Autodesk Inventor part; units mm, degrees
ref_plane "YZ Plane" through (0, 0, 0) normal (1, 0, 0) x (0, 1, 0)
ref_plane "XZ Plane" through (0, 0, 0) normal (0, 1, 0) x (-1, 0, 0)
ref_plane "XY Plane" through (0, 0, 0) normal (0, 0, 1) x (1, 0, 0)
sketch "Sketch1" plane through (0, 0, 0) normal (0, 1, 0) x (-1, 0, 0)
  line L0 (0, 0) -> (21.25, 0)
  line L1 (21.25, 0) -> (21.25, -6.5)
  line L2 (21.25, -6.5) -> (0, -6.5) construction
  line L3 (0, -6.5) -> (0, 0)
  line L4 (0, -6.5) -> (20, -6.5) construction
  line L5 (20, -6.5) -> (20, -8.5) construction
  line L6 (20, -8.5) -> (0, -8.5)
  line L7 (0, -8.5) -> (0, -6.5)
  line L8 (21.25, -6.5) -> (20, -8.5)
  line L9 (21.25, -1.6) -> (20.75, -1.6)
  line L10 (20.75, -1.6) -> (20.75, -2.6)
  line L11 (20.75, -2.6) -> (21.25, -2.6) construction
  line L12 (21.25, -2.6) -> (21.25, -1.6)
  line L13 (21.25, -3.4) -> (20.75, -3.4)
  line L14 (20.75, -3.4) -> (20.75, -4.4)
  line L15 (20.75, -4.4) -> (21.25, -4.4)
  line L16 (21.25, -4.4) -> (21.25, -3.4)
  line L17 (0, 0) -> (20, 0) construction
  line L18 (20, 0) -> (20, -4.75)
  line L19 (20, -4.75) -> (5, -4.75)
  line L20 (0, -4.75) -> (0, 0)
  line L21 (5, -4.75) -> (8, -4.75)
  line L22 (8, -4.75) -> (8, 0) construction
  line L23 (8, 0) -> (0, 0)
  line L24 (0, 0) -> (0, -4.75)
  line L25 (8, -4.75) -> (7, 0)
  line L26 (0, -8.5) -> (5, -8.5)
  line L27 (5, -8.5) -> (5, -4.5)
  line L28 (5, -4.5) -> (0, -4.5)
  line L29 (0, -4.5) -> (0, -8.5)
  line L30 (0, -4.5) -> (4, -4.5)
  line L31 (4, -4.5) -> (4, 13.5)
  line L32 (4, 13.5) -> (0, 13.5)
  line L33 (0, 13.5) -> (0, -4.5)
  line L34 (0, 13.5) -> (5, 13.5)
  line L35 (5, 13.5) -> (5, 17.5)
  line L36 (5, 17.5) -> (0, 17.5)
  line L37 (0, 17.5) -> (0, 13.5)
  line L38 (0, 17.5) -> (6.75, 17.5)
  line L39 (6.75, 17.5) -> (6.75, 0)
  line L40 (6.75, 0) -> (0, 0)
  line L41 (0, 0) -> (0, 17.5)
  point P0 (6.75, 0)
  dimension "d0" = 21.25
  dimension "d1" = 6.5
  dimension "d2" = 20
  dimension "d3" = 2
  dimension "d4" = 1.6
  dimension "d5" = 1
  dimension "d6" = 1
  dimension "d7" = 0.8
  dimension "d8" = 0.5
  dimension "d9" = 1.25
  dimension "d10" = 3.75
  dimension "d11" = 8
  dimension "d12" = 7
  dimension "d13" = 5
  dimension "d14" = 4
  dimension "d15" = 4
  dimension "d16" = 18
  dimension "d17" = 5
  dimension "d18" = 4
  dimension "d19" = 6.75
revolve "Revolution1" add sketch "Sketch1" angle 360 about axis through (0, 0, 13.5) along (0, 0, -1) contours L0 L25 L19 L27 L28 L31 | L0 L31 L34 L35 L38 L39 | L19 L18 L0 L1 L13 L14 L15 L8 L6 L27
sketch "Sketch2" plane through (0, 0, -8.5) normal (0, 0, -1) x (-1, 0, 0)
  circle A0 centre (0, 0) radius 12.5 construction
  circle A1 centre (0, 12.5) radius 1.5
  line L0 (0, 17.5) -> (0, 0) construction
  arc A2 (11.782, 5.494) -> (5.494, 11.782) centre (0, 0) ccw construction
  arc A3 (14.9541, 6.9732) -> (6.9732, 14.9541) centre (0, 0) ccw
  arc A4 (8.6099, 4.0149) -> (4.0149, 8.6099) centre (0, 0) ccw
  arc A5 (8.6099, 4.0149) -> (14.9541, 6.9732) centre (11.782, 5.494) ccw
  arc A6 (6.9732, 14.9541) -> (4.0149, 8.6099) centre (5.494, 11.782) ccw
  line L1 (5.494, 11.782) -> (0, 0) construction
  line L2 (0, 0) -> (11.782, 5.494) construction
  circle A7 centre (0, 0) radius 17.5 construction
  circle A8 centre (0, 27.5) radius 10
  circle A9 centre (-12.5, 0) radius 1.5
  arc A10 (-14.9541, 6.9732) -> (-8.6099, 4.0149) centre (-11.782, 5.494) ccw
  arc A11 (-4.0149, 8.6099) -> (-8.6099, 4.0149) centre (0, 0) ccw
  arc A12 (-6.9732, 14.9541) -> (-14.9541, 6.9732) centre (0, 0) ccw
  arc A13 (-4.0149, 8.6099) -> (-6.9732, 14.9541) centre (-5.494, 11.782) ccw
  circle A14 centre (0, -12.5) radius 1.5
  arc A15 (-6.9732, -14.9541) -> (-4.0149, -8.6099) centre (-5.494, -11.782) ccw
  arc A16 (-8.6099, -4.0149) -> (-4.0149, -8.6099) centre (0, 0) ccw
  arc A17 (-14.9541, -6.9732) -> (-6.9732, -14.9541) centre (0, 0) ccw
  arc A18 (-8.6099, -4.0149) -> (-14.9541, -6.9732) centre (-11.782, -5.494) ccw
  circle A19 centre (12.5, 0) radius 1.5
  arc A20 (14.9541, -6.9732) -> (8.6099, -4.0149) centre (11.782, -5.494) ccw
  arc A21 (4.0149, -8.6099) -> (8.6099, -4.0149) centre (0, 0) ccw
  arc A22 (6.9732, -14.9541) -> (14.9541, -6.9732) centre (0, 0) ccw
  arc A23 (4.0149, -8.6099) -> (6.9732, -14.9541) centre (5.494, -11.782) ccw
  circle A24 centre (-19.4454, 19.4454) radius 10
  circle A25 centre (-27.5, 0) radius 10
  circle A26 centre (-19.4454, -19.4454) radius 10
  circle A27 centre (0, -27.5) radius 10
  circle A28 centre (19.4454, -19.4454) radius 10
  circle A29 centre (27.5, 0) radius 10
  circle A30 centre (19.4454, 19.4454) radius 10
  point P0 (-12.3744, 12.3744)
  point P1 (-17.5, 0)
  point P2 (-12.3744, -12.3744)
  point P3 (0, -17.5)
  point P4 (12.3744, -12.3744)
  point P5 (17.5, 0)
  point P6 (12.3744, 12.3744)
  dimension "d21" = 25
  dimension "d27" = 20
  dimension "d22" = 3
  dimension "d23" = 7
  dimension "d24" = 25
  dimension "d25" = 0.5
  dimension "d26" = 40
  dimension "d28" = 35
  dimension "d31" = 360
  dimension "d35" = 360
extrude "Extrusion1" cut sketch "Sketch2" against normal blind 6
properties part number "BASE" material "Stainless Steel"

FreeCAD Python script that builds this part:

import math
import FreeCAD as App
import Part
import Sketcher
from FreeCAD import Vector
Q = App.Units.Quantity

doc = App.newDocument("Part")
body = doc.addObject("PartDesign::Body", "Body")

sketch1 = doc.addObject("Sketcher::SketchObject", "Sketch")
body.addObject(sketch1)
sketch1.AttachmentSupport = (doc.XZ_Plane, [""])
sketch1.MapMode = "FlatFace"
sketch1.addGeometry(Part.LineSegment(Vector(-7, 0, 0), Vector(-6.75, 0, 0)), False)
sketch1.addGeometry(Part.LineSegment(Vector(-6.75, 0, 0), Vector(-6.75, 17.5, 0)), False)
sketch1.addGeometry(Part.LineSegment(Vector(-6.75, 17.5, 0), Vector(-5, 17.5, 0)), False)
sketch1.addGeometry(Part.LineSegment(Vector(-5, 17.5, 0), Vector(-5, 13.5, 0)), False)
sketch1.addGeometry(Part.LineSegment(Vector(-5, 13.5, 0), Vector(-4, 13.5, 0)), False)
sketch1.addGeometry(Part.LineSegment(Vector(-4, 13.5, 0), Vector(-4, -4.5, 0)), False)
sketch1.addGeometry(Part.LineSegment(Vector(-4, -4.5, 0), Vector(-5, -4.5, 0)), False)
sketch1.addGeometry(Part.LineSegment(Vector(-5, -4.5, 0), Vector(-5, -8.5, 0)), False)
sketch1.addGeometry(Part.LineSegment(Vector(-5, -8.5, 0), Vector(-20, -8.5, 0)), False)
sketch1.addGeometry(Part.LineSegment(Vector(-20, -8.5, 0), Vector(-21.25, -6.5, 0)), False)
sketch1.addGeometry(Part.LineSegment(Vector(-21.25, -6.5, 0), Vector(-21.25, -4.4, 0)), False)
sketch1.addGeometry(Part.LineSegment(Vector(-21.25, -4.4, 0), Vector(-20.75, -4.4, 0)), False)
sketch1.addGeometry(Part.LineSegment(Vector(-20.75, -4.4, 0), Vector(-20.75, -3.4, 0)), False)
sketch1.addGeometry(Part.LineSegment(Vector(-20.75, -3.4, 0), Vector(-21.25, -3.4, 0)), False)
sketch1.addGeometry(Part.LineSegment(Vector(-21.25, -3.4, 0), Vector(-21.25, 0, 0)), False)
sketch1.addGeometry(Part.LineSegment(Vector(-21.25, 0, 0), Vector(-20, 0, 0)), False)
sketch1.addGeometry(Part.LineSegment(Vector(-20, 0, 0), Vector(-20, -4.75, 0)), False)
sketch1.addGeometry(Part.LineSegment(Vector(-20, -4.75, 0), Vector(-8, -4.75, 0)), False)
sketch1.addGeometry(Part.LineSegment(Vector(-8, -4.75, 0), Vector(-7, 0, 0)), False)
sketch1.addConstraint(Sketcher.Constraint("Coincident", 0, 2, 1, 1))
sketch1.addConstraint(Sketcher.Constraint("Coincident", 1, 2, 2, 1))
sketch1.addConstraint(Sketcher.Constraint("Coincident", 2, 2, 3, 1))
sketch1.addConstraint(Sketcher.Constraint("Coincident", 3, 2, 4, 1))
sketch1.addConstraint(Sketcher.Constraint("Coincident", 4, 2, 5, 1))
sketch1.addConstraint(Sketcher.Constraint("Coincident", 5, 2, 6, 1))
sketch1.addConstraint(Sketcher.Constraint("Coincident", 6, 2, 7, 1))
sketch1.addConstraint(Sketcher.Constraint("Coincident", 7, 2, 8, 1))
sketch1.addConstraint(Sketcher.Constraint("Coincident", 8, 2, 9, 1))
sketch1.addConstraint(Sketcher.Constraint("Coincident", 9, 2, 10, 1))
sketch1.addConstraint(Sketcher.Constraint("Coincident", 10, 2, 11, 1))
sketch1.addConstraint(Sketcher.Constraint("Coincident", 11, 2, 12, 1))
sketch1.addConstraint(Sketcher.Constraint("Coincident", 12, 2, 13, 1))
sketch1.addConstraint(Sketcher.Constraint("Coincident", 13, 2, 14, 1))
sketch1.addConstraint(Sketcher.Constraint("Coincident", 14, 2, 15, 1))
sketch1.addConstraint(Sketcher.Constraint("Coincident", 15, 2, 16, 1))
sketch1.addConstraint(Sketcher.Constraint("Coincident", 16, 2, 17, 1))
sketch1.addConstraint(Sketcher.Constraint("Coincident", 17, 2, 18, 1))
sketch1.addConstraint(Sketcher.Constraint("Coincident", 18, 2, 0, 1))
sketch1.addConstraint(Sketcher.Constraint("Horizontal", 0))
sketch1.addConstraint(Sketcher.Constraint("Vertical", 1))
sketch1.addConstraint(Sketcher.Constraint("Horizontal", 2))
sketch1.addConstraint(Sketcher.Constraint("Vertical", 3))
sketch1.addConstraint(Sketcher.Constraint("Horizontal", 4))
sketch1.addConstraint(Sketcher.Constraint("Vertical", 5))
sketch1.addConstraint(Sketcher.Constraint("Horizontal", 6))
sketch1.addConstraint(Sketcher.Constraint("Vertical", 7))
sketch1.addConstraint(Sketcher.Constraint("Horizontal", 8))
sketch1.addConstraint(Sketcher.Constraint("Vertical", 10))
sketch1.addConstraint(Sketcher.Constraint("Horizontal", 11))
sketch1.addConstraint(Sketcher.Constraint("Vertical", 12))
sketch1.addConstraint(Sketcher.Constraint("Horizontal", 13))
sketch1.addConstraint(Sketcher.Constraint("Vertical", 14))
sketch1.addConstraint(Sketcher.Constraint("Horizontal", 15))
sketch1.addConstraint(Sketcher.Constraint("Vertical", 16))
sketch1.addConstraint(Sketcher.Constraint("Horizontal", 17))
sketch1.addConstraint(Sketcher.Constraint("PointOnObject", 0, 2, -1))
sketch1.addConstraint(Sketcher.Constraint("PointOnObject", 14, 2, -1))
sketch1.addConstraint(Sketcher.Constraint("Vertical", 3, 2, 6, 2))
sketch1.addConstraint(Sketcher.Constraint("Vertical", 10, 2, 13, 2))
sketch1.addConstraint(Sketcher.Constraint("Vertical", 8, 2, 15, 2))
sketch1.addConstraint(Sketcher.Constraint("Equal", 3, 7))
sketch1.addConstraint(Sketcher.Constraint("Equal", 6, 12))
sketch1.addConstraint(Sketcher.Constraint("DistanceX", 4, 1, 4, 2, Q("1 mm")))
sketch1.addConstraint(Sketcher.Constraint("DistanceY", 3, 2, 3, 1, Q("4 mm")))
sketch1.addConstraint(Sketcher.Constraint("DistanceY", 5, 2, 5, 1, Q("18 mm")))
sketch1.addConstraint(Sketcher.Constraint("DistanceX", 11, 1, 11, 2, Q("0.5 mm")))
sketch1.addConstraint(Sketcher.Constraint("DistanceX", 2, 2, -1, 1, Q("5 mm")))
sketch1.addConstraint(Sketcher.Constraint("DistanceX", 8, 2, -1, 1, Q("20 mm")))
sketch1.addConstraint(Sketcher.Constraint("DistanceX", 17, 2, -1, 1, Q("8 mm")))
sketch1.addConstraint(Sketcher.Constraint("DistanceX", 18, 2, -1, 1, Q("7 mm")))
sketch1.addConstraint(Sketcher.Constraint("DistanceY", 8, 2, 9, 2, Q("2 mm")))
sketch1.addConstraint(Sketcher.Constraint("DistanceX", 15, 1, 15, 2, Q("1.25 mm")))
sketch1.addConstraint(Sketcher.Constraint("DistanceY", 9, 2, -1, 1, Q("6.5 mm")))
sketch1.addConstraint(Sketcher.Constraint("DistanceX", 0, 2, -1, 1, Q("6.75 mm")))
sketch1.addConstraint(Sketcher.Constraint("DistanceY", 7, 2, 17, 2, Q("3.75 mm")))
sketch1.addConstraint(Sketcher.Constraint("DistanceY", 10, 1, 10, 2, Q("2.1 mm")))
revolution = doc.addObject("PartDesign::Revolution", "Revolution")
body.addObject(revolution)
revolution.Profile = sketch1
revolution.ReferenceAxis = (sketch1, ["V_Axis"])
revolution.Angle = 360

sketch2 = doc.addObject("Sketcher::SketchObject", "Sketch001")
body.addObject(sketch2)
sketch2.AttachmentSupport = (doc.XY_Plane, [""])
sketch2.MapMode = "FlatFace"
sketch2.AttachmentOffset = App.Placement(Vector(0, 0, -8.5), App.Rotation())
sketch2.addGeometry(Part.Circle(Vector(0, 12.5, 0), Vector(0, 0, 1), 1.5), False)
sketch2.addGeometry(Part.ArcOfCircle(Part.Circle(Vector(-11.8, 5.5, 0), Vector(0, 0, 1), 3.5), math.radians(155), math.radians(335)), False)
sketch2.addGeometry(Part.ArcOfCircle(Part.Circle(Vector(0, 0, 0), Vector(0, 0, 1), 16.5), math.radians(115), math.radians(155)), False)
sketch2.addGeometry(Part.ArcOfCircle(Part.Circle(Vector(-5.5, 11.8, 0), Vector(0, 0, 1), 3.5), math.radians(-65), math.radians(115)), False)
sketch2.addGeometry(Part.ArcOfCircle(Part.Circle(Vector(0, 0, 0), Vector(0, 0, 1), 9.5), math.radians(115), math.radians(155)), False)
sketch2.addGeometry(Part.Circle(Vector(0, 27.5, 0), Vector(0, 0, 1), 10), False)
sketch2.addGeometry(Part.Circle(Vector(12.5, 0, 0), Vector(0, 0, 1), 1.5), False)
sketch2.addGeometry(Part.ArcOfCircle(Part.Circle(Vector(0, 0, 0), Vector(0, 0, 1), 16.5), math.radians(25), math.radians(65)), False)
sketch2.addGeometry(Part.ArcOfCircle(Part.Circle(Vector(11.8, 5.5, 0), Vector(0, 0, 1), 3.5), math.radians(-155), math.radians(25)), False)
sketch2.addGeometry(Part.ArcOfCircle(Part.Circle(Vector(0, 0, 0), Vector(0, 0, 1), 9.5), math.radians(25), math.radians(65)), False)
sketch2.addGeometry(Part.ArcOfCircle(Part.Circle(Vector(5.5, 11.8, 0), Vector(0, 0, 1), 3.5), math.radians(65), math.radians(245)), False)
sketch2.addGeometry(Part.Circle(Vector(0, -12.5, 0), Vector(0, 0, 1), 1.5), False)
sketch2.addGeometry(Part.ArcOfCircle(Part.Circle(Vector(0, 0, 0), Vector(0, 0, 1), 16.5), math.radians(-65), math.radians(-25)), False)
sketch2.addGeometry(Part.ArcOfCircle(Part.Circle(Vector(5.5, -11.8, 0), Vector(0, 0, 1), 3.5), math.radians(115), math.radians(295)), False)
sketch2.addGeometry(Part.ArcOfCircle(Part.Circle(Vector(0, 0, 0), Vector(0, 0, 1), 9.5), math.radians(-65), math.radians(-25)), False)
sketch2.addGeometry(Part.ArcOfCircle(Part.Circle(Vector(11.8, -5.5, 0), Vector(0, 0, 1), 3.5), math.radians(-25), math.radians(155)), False)
sketch2.addGeometry(Part.Circle(Vector(-12.5, 0, 0), Vector(0, 0, 1), 1.5), False)
sketch2.addGeometry(Part.ArcOfCircle(Part.Circle(Vector(0, 0, 0), Vector(0, 0, 1), 16.5), math.radians(-155), math.radians(-115)), False)
sketch2.addGeometry(Part.ArcOfCircle(Part.Circle(Vector(-11.8, -5.5, 0), Vector(0, 0, 1), 3.5), math.radians(25), math.radians(205)), False)
sketch2.addGeometry(Part.ArcOfCircle(Part.Circle(Vector(0, 0, 0), Vector(0, 0, 1), 9.5), math.radians(-155), math.radians(-115)), False)
sketch2.addGeometry(Part.ArcOfCircle(Part.Circle(Vector(-5.5, -11.8, 0), Vector(0, 0, 1), 3.5), math.radians(-115), math.radians(65)), False)
sketch2.addGeometry(Part.Circle(Vector(19.4, 19.4, 0), Vector(0, 0, 1), 10), False)
sketch2.addGeometry(Part.Circle(Vector(27.5, 0, 0), Vector(0, 0, 1), 10), False)
sketch2.addGeometry(Part.Circle(Vector(19.4, -19.4, 0), Vector(0, 0, 1), 10), False)
sketch2.addGeometry(Part.Circle(Vector(0, -27.5, 0), Vector(0, 0, 1), 10), False)
sketch2.addGeometry(Part.Circle(Vector(-19.4, -19.4, 0), Vector(0, 0, 1), 10), False)
sketch2.addGeometry(Part.Circle(Vector(-27.5, 0, 0), Vector(0, 0, 1), 10), False)
sketch2.addGeometry(Part.Circle(Vector(-19.4, 19.4, 0), Vector(0, 0, 1), 10), False)
sketch2.addConstraint(Sketcher.Constraint("Tangent", 1, 1, 2, 2))
sketch2.addConstraint(Sketcher.Constraint("Tangent", 2, 1, 3, 2))
sketch2.addConstraint(Sketcher.Constraint("Tangent", 3, 1, 4, 1))
sketch2.addConstraint(Sketcher.Constraint("Tangent", 4, 2, 1, 2))
sketch2.addConstraint(Sketcher.Constraint("Tangent", 7, 1, 8, 2))
sketch2.addConstraint(Sketcher.Constraint("Tangent", 8, 1, 9, 1))
sketch2.addConstraint(Sketcher.Constraint("Tangent", 9, 2, 10, 2))
sketch2.addConstraint(Sketcher.Constraint("Tangent", 10, 1, 7, 2))
sketch2.addConstraint(Sketcher.Constraint("Tangent", 12, 1, 13, 2))
sketch2.addConstraint(Sketcher.Constraint("Tangent", 13, 1, 14, 1))
sketch2.addConstraint(Sketcher.Constraint("Tangent", 14, 2, 15, 2))
sketch2.addConstraint(Sketcher.Constraint("Tangent", 15, 1, 12, 2))
sketch2.addConstraint(Sketcher.Constraint("Tangent", 17, 1, 18, 2))
sketch2.addConstraint(Sketcher.Constraint("Tangent", 18, 1, 19, 1))
sketch2.addConstraint(Sketcher.Constraint("Tangent", 19, 2, 20, 2))
sketch2.addConstraint(Sketcher.Constraint("Tangent", 20, 1, 17, 2))
sketch2.addConstraint(Sketcher.Constraint("Coincident", 2, 3, -1, 1))
sketch2.addConstraint(Sketcher.Constraint("Coincident", 4, 3, -1, 1))
sketch2.addConstraint(Sketcher.Constraint("Coincident", 7, 3, -1, 1))
sketch2.addConstraint(Sketcher.Constraint("Coincident", 9, 3, -1, 1))
sketch2.addConstraint(Sketcher.Constraint("Coincident", 12, 3, -1, 1))
sketch2.addConstraint(Sketcher.Constraint("Coincident", 14, 3, -1, 1))
sketch2.addConstraint(Sketcher.Constraint("Coincident", 17, 3, -1, 1))
sketch2.addConstraint(Sketcher.Constraint("Coincident", 19, 3, -1, 1))
sketch2.addConstraint(Sketcher.Constraint("Equal", 0, 6))
sketch2.addConstraint(Sketcher.Constraint("Equal", 2, 7))
sketch2.addConstraint(Sketcher.Constraint("Equal", 3, 8))
sketch2.addConstraint(Sketcher.Constraint("Equal", 6, 11))
sketch2.addConstraint(Sketcher.Constraint("Equal", 7, 12))
sketch2.addConstraint(Sketcher.Constraint("Equal", 10, 13))
sketch2.addConstraint(Sketcher.Constraint("Equal", 11, 16))
sketch2.addConstraint(Sketcher.Constraint("Equal", 12, 17))
sketch2.addConstraint(Sketcher.Constraint("Equal", 15, 18))
sketch2.addConstraint(Sketcher.Constraint("Equal", 5, 21))
sketch2.addConstraint(Sketcher.Constraint("Equal", 21, 22))
sketch2.addConstraint(Sketcher.Constraint("Equal", 22, 23))
sketch2.addConstraint(Sketcher.Constraint("Equal", 23, 24))
sketch2.addConstraint(Sketcher.Constraint("Equal", 24, 25))
sketch2.addConstraint(Sketcher.Constraint("Equal", 25, 26))
sketch2.addConstraint(Sketcher.Constraint("Equal", 26, 27))
sketch2.addConstraint(Sketcher.Constraint("Symmetric", 0, 3, 11, 3, -1, 1))
sketch2.addConstraint(Sketcher.Constraint("Symmetric", 6, 3, 16, 3, -1, 1))
sketch2.addConstraint(Sketcher.Constraint("Symmetric", 5, 3, 24, 3, -1, 1))
sketch2.addConstraint(Sketcher.Constraint("Symmetric", 21, 3, 25, 3, -1, 1))
sketch2.addConstraint(Sketcher.Constraint("Symmetric", 22, 3, 26, 3, -1, 1))
sketch2.addConstraint(Sketcher.Constraint("Symmetric", 23, 3, 27, 3, -1, 1))
sketch2.addConstraint(Sketcher.Constraint("Symmetric", 23, 3, 25, 3, -2))
sketch2.addConstraint(Sketcher.Constraint("PointOnObject", 0, 3, -2))
sketch2.addConstraint(Sketcher.Constraint("PointOnObject", 5, 3, -2))
sketch2.addConstraint(Sketcher.Constraint("PointOnObject", 6, 3, -1))
sketch2.addConstraint(Sketcher.Constraint("PointOnObject", 22, 3, -1))
sketch2.addConstraint(Sketcher.Constraint("Horizontal", 1, 3, 8, 3))
sketch2.addConstraint(Sketcher.Constraint("Horizontal", 3, 3, 10, 3))
sketch2.addConstraint(Sketcher.Constraint("Horizontal", 15, 3, 18, 3))
sketch2.addConstraint(Sketcher.Constraint("Horizontal", 13, 3, 20, 3))
sketch2.addConstraint(Sketcher.Constraint("Vertical", 10, 3, 13, 3))
sketch2.addConstraint(Sketcher.Constraint("Vertical", 8, 3, 15, 3))
sketch2.addConstraint(Sketcher.Constraint("Diameter", 0, Q("3 mm")))
sketch2.addConstraint(Sketcher.Constraint("Diameter", 5, Q("20 mm")))
sketch2.addConstraint(Sketcher.Constraint("Radius", 1, Q("3.5 mm")))
sketch2.addConstraint(Sketcher.Constraint("Radius", 2, Q("16.5 mm")))
sketch2.addConstraint(Sketcher.Constraint("DistanceY", 0, 3, 5, 3, Q("15 mm")))
sketch2.addConstraint(Sketcher.Constraint("DistanceX", 6, 3, 22, 3, Q("15 mm")))
sketch2.addConstraint(Sketcher.Constraint("DistanceY", -1, 1, 0, 3, Q("12.5 mm")))
sketch2.addConstraint(Sketcher.Constraint("DistanceX", -1, 1, 6, 3, Q("12.5 mm")))
sketch2.addConstraint(Sketcher.Constraint("DistanceX", 4, 2, -1, 1, Q("8.61 mm")))
sketch2.addConstraint(Sketcher.Constraint("DistanceY", -1, 1, 9, 2, Q("8.61 mm")))
sketch2.addConstraint(Sketcher.Constraint("DistanceX", -1, 1, 21, 3, Q("19.4454 mm")))
sketch2.addConstraint(Sketcher.Constraint("DistanceY", -1, 1, 21, 3, Q("19.4454 mm")))
pocket1 = doc.addObject("PartDesign::Pocket", "Pocket")
body.addObject(pocket1)
pocket1.Profile = sketch2
pocket1.Length = 6
pocket1.Reversed = True

doc.recompute()
